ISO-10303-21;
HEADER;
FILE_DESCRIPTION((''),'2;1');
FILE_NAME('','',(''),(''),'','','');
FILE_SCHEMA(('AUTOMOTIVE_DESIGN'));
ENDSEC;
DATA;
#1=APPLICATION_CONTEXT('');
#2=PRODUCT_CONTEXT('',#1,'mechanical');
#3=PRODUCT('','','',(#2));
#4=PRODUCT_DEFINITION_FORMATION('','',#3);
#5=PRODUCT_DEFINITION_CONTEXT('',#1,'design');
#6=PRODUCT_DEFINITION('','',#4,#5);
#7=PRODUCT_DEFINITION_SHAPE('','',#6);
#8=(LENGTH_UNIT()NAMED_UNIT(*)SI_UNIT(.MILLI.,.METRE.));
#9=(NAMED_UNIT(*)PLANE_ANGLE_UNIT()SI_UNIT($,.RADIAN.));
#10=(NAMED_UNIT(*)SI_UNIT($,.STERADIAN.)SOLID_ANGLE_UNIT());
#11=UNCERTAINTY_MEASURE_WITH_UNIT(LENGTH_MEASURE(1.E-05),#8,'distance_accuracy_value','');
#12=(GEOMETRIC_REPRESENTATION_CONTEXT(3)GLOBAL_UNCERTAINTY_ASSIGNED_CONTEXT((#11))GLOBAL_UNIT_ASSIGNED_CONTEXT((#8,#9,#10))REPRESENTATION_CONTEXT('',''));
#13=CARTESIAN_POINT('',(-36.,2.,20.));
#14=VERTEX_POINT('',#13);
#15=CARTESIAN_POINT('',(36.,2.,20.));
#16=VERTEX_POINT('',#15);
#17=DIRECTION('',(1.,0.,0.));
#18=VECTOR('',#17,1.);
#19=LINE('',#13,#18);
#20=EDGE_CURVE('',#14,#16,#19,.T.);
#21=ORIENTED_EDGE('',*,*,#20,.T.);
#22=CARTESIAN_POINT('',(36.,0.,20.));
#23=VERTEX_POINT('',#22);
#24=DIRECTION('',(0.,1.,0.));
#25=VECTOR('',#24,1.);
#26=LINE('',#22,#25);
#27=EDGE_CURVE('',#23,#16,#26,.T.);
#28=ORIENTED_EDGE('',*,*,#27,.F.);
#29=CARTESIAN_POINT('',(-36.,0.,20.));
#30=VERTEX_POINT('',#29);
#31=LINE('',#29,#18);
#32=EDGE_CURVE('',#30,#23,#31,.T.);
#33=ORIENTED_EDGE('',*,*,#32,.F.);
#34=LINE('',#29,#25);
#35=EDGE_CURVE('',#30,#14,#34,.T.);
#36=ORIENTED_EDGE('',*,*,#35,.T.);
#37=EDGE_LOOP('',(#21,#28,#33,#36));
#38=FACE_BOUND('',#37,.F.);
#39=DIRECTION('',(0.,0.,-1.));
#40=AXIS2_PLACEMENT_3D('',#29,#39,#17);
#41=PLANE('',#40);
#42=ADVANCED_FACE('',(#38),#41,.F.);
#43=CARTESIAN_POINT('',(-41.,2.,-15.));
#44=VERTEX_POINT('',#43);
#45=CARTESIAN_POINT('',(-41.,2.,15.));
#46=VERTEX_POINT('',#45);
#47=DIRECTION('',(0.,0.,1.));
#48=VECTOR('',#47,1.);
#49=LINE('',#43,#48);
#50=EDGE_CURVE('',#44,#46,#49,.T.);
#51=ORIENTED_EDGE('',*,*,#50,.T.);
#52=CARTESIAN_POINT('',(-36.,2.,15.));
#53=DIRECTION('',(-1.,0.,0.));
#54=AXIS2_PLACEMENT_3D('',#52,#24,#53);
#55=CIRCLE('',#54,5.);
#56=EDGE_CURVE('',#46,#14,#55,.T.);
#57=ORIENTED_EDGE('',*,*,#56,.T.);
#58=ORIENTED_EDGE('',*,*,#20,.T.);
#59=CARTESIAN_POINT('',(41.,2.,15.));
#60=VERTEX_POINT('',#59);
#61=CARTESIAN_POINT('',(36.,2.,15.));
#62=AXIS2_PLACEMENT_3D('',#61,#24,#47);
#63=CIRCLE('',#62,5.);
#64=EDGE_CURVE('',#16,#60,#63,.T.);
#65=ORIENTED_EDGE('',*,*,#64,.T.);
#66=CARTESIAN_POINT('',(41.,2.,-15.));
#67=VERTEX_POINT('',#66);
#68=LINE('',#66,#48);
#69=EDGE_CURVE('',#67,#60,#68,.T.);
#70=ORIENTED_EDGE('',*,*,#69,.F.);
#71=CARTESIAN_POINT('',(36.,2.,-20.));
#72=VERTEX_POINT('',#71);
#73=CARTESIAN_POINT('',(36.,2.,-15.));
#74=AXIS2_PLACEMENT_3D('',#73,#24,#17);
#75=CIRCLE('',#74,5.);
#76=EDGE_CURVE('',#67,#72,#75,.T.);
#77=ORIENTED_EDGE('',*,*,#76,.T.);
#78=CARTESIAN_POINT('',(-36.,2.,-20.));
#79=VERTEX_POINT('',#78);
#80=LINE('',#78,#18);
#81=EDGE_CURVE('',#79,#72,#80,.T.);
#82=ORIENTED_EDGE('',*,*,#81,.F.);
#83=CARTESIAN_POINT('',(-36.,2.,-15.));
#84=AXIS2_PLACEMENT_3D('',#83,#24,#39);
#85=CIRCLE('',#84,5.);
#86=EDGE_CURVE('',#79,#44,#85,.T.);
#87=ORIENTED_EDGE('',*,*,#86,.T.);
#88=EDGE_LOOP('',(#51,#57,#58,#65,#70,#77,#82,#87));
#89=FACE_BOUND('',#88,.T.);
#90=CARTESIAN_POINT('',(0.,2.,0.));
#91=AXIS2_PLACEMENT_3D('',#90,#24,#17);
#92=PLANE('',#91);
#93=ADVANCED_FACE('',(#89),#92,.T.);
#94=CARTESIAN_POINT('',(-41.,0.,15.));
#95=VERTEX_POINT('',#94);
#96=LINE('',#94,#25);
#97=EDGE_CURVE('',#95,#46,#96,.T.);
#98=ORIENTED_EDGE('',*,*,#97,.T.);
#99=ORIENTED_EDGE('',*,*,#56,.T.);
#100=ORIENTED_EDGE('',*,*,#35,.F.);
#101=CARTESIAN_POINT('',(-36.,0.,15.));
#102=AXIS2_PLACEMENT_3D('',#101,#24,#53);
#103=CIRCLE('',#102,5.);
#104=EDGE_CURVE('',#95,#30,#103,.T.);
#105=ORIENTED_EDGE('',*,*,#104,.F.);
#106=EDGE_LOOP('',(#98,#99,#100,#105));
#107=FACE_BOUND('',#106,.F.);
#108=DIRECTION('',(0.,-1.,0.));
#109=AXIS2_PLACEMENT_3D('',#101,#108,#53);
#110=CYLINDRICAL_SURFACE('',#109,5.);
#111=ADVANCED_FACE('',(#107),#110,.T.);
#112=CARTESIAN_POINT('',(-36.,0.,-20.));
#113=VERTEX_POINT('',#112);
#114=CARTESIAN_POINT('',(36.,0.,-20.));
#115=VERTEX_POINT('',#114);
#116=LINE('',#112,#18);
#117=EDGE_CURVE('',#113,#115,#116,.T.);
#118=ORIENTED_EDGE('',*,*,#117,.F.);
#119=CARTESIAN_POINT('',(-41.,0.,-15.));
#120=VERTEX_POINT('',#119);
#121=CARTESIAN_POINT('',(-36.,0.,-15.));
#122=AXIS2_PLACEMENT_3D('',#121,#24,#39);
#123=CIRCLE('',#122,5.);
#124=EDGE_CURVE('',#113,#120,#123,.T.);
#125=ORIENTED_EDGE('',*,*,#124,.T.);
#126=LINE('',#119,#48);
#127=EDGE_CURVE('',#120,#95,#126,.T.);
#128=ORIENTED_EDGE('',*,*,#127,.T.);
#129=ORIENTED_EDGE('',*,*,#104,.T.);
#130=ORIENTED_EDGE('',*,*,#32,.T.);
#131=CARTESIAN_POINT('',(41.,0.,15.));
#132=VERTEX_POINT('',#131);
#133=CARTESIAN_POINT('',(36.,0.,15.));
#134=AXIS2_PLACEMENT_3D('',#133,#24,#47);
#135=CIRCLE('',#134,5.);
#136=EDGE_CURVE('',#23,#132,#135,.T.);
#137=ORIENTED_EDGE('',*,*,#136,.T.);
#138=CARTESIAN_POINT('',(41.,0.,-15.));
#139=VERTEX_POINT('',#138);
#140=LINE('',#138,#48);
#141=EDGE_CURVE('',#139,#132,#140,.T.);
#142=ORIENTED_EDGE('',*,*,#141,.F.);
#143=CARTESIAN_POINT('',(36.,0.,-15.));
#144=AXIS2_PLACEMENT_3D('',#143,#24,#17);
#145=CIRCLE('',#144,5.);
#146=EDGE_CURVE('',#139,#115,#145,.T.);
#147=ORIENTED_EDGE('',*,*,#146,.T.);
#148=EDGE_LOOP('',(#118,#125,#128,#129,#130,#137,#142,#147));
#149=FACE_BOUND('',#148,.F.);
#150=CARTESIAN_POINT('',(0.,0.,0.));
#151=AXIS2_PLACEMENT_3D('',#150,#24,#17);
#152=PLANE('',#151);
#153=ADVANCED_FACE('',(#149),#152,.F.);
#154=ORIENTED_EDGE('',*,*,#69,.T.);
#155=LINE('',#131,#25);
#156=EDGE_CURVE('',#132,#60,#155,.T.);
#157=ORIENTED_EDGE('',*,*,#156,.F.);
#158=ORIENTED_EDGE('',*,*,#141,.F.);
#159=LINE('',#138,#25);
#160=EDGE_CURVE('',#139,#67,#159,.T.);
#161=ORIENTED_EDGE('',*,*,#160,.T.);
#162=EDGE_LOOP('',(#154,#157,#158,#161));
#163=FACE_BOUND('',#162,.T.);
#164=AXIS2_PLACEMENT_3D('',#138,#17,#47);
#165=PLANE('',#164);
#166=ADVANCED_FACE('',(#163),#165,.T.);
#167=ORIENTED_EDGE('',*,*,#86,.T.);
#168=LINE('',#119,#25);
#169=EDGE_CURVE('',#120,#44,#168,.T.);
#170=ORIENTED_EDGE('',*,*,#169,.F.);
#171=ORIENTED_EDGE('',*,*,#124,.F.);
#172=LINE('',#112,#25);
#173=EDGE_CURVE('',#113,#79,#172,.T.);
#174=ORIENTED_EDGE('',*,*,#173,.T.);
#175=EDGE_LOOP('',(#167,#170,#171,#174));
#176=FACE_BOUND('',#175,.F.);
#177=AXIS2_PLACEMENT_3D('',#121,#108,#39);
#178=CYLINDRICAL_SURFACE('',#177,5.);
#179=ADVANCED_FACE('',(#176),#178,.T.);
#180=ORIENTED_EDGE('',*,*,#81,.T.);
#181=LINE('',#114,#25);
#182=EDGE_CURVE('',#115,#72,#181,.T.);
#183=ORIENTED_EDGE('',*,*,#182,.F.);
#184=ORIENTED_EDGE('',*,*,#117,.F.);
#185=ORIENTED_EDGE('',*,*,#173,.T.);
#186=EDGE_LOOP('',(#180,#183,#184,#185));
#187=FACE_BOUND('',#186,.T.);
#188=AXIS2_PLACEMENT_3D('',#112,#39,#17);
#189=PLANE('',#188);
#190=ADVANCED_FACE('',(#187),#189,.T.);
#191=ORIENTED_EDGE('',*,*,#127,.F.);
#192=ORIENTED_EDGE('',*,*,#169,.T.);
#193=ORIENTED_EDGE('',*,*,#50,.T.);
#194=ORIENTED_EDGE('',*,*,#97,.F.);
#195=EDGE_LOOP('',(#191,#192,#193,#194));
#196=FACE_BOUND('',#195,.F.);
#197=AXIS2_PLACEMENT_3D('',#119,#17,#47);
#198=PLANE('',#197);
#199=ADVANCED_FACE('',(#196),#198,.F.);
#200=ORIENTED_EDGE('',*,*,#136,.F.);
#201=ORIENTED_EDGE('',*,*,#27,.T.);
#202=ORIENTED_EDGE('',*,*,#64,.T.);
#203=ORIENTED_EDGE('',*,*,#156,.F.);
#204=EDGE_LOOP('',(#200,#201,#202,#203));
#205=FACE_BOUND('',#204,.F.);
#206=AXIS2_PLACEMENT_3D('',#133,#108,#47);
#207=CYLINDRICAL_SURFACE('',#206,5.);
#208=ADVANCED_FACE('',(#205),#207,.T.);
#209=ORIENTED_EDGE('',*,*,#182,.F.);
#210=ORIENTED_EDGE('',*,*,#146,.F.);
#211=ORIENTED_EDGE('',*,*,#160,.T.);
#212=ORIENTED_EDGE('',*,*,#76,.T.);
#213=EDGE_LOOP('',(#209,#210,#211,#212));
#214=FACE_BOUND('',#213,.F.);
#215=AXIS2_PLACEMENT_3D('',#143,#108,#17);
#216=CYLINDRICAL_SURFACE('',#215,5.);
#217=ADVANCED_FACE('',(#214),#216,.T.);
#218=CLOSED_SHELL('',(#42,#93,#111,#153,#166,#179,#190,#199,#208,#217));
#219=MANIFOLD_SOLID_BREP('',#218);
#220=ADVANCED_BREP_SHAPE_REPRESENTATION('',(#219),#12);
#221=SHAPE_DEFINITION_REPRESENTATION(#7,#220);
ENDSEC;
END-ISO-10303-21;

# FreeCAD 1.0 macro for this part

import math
import FreeCAD as App
import Part
import Sketcher
from FreeCAD import Vector

doc = App.newDocument("Part")
body = doc.addObject("PartDesign::Body", "Body")

sketch1 = doc.addObject("Sketcher::SketchObject", "Sketch")
body.addObject(sketch1)
sketch1.AttachmentSupport = (doc.XZ_Plane, [""])
sketch1.MapMode = "FlatFace"
sketch1.addGeometry([
    Part.ArcOfCircle(Part.Circle(Vector(-36, -15, 0), Vector(0, 0, 1), 5), math.radians(180), math.radians(270)),
    Part.LineSegment(Vector(-41, -15, 0), Vector(-41, 15, 0)),
    Part.ArcOfCircle(Part.Circle(Vector(-36, 15, 0), Vector(0, 0, 1), 5), math.radians(90), math.radians(180)),
    Part.LineSegment(Vector(-36, 20, 0), Vector(36, 20, 0)),
    Part.ArcOfCircle(Part.Circle(Vector(36, 15, 0), Vector(0, 0, 1), 5), math.radians(0), math.radians(90)),
    Part.LineSegment(Vector(41, 15, 0), Vector(41, -15, 0)),
    Part.ArcOfCircle(Part.Circle(Vector(36, -15, 0), Vector(0, 0, 1), 5), math.radians(-90), math.radians(0)),
    Part.LineSegment(Vector(36, -20, 0), Vector(-36, -20, 0)),
], False)
sketch1.addConstraint([
    Sketcher.Constraint("Tangent", 0, 1, 1, 1),
    Sketcher.Constraint("Tangent", 1, 2, 2, 2),
    Sketcher.Constraint("Tangent", 2, 1, 3, 1),
    Sketcher.Constraint("Tangent", 3, 2, 4, 2),
    Sketcher.Constraint("Tangent", 4, 1, 5, 1),
    Sketcher.Constraint("Tangent", 5, 2, 6, 2),
    Sketcher.Constraint("Tangent", 6, 1, 7, 1),
    Sketcher.Constraint("Tangent", 7, 2, 0, 2),
    Sketcher.Constraint("Vertical", 1),
    Sketcher.Constraint("Horizontal", 3),
    Sketcher.Constraint("Vertical", 5),
    Sketcher.Constraint("Horizontal", 7),
    Sketcher.Constraint("Equal", 0, 2),
    Sketcher.Constraint("Equal", 2, 4),
    Sketcher.Constraint("Equal", 4, 6),
    Sketcher.Constraint("Symmetric", 0, 3, 4, 3, -1, 1),
    Sketcher.Constraint("DistanceX", 3, 1, 3, 2, 72.0),
    Sketcher.Constraint("DistanceY", 1, 1, 1, 2, 30.0),
    Sketcher.Constraint("Radius", 0, 5.0),
])
pad1 = doc.addObject("PartDesign::Pad", "Pad")
body.addObject(pad1)
pad1.Profile = sketch1
pad1.Length = 2
pad1.Reversed = True

doc.recompute()
